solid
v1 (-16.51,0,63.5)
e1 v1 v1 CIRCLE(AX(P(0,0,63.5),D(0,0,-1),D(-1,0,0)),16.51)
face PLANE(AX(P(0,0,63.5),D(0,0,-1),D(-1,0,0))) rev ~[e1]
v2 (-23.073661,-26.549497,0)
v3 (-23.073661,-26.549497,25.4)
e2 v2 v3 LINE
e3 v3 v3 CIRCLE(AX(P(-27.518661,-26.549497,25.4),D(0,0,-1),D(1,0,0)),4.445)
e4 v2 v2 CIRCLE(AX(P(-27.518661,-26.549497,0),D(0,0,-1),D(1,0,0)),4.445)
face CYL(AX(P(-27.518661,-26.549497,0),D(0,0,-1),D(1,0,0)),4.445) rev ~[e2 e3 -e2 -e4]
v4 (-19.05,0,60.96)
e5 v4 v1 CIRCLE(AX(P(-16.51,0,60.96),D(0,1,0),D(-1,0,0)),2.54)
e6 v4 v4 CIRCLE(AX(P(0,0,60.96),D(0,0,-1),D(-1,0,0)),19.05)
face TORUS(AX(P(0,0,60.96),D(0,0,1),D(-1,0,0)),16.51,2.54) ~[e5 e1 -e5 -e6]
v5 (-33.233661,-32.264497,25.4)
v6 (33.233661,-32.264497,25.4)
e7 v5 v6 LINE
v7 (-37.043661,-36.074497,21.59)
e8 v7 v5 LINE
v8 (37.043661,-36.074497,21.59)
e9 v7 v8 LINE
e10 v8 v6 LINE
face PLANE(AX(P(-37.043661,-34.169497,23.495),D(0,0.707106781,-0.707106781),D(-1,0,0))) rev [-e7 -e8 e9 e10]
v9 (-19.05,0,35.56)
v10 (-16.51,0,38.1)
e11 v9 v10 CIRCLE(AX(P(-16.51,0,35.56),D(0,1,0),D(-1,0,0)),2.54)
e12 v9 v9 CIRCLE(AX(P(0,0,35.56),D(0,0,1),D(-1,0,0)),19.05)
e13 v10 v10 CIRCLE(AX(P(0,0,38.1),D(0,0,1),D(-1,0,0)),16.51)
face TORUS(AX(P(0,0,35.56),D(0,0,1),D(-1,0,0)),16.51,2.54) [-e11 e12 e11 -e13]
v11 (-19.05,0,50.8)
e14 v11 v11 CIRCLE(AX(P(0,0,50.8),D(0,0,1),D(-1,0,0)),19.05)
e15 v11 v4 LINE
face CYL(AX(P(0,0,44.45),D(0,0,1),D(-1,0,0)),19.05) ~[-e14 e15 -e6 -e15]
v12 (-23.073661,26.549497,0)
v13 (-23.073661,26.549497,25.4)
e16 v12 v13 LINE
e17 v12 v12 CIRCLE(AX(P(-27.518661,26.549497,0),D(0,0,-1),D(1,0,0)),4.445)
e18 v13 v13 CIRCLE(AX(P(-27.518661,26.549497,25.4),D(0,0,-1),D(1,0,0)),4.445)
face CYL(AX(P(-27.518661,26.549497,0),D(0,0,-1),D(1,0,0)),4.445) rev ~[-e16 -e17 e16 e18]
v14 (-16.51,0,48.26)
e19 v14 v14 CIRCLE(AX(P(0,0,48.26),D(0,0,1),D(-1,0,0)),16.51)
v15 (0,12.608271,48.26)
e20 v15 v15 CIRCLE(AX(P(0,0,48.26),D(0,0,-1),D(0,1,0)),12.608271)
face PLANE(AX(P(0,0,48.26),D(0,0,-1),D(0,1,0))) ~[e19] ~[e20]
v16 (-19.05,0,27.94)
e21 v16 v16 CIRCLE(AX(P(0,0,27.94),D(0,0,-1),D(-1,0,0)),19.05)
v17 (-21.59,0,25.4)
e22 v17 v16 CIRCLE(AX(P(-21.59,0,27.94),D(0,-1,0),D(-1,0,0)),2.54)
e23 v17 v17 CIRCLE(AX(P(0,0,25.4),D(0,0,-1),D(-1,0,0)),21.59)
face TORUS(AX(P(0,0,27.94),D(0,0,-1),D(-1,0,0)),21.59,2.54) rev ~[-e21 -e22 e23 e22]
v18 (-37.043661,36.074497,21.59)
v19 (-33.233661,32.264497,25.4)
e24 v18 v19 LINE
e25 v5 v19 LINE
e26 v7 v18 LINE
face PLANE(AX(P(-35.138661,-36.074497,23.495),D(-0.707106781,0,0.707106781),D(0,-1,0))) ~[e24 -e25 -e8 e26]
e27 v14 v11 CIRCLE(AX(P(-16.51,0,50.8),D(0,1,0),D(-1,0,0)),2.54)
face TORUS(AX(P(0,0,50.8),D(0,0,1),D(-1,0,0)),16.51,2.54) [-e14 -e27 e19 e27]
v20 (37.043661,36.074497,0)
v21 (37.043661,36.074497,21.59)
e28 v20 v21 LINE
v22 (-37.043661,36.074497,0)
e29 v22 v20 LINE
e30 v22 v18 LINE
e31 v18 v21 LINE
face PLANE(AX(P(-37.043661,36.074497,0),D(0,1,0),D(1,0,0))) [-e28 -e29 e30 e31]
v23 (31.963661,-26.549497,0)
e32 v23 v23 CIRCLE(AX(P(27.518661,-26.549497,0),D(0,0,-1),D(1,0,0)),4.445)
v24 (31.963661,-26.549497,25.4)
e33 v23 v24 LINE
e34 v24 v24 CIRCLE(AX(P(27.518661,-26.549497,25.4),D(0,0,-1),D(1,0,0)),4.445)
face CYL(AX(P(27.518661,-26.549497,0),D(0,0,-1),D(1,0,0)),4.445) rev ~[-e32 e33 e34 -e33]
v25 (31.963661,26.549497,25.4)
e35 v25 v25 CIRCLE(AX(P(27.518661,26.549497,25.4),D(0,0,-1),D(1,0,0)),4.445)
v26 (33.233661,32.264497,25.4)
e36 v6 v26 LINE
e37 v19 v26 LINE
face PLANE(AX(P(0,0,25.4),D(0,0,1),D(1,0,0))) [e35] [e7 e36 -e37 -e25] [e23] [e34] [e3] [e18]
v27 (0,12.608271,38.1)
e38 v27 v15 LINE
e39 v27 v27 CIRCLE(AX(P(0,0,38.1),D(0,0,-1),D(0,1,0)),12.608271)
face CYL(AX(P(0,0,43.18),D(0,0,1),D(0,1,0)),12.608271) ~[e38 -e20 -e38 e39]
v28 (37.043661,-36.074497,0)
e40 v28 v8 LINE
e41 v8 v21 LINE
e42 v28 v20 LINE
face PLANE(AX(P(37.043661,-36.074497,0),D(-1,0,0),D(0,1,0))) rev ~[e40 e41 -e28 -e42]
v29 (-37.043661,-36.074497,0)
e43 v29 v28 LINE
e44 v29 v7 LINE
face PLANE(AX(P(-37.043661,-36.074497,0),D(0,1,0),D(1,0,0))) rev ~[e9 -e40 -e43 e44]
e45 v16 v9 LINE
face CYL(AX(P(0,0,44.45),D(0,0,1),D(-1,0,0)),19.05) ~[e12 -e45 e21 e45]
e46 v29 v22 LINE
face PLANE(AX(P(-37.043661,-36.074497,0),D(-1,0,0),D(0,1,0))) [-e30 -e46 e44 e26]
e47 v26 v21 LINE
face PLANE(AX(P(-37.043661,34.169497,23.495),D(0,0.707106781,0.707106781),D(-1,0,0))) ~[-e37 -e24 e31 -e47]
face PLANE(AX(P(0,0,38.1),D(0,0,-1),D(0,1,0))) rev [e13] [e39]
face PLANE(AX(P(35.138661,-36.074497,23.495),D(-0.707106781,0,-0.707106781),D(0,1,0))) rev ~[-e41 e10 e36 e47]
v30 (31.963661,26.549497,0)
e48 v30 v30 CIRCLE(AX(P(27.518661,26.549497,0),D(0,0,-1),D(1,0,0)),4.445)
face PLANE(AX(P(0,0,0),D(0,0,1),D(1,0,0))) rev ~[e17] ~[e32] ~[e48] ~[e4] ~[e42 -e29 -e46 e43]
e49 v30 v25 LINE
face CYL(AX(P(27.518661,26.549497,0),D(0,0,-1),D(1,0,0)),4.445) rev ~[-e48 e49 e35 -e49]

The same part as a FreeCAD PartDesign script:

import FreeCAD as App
import Part
import Sketcher
Q = App.Units.Quantity


def edges_at(feature, points):
    """Names of the edges that pass closest to the given points."""
    edges = feature.Shape.Edges
    near = lambda p: min(range(len(edges)), key=lambda i: edges[i].distToShape(Part.Vertex(*p))[0])
    return sorted({f"Edge{near(p) + 1}" for p in points})

doc = App.newDocument("Part")
body = doc.addObject("PartDesign::Body", "Body")

# Sketch on XY plane
sketch1 = body.newObject("Sketcher::SketchObject", "Sketch")
sketch1.AttachmentSupport = (doc.getObject("XY_Plane"), [""])
sketch1.MapMode = "FlatFace"
sketch1.addGeometry(Part.LineSegment(App.Vector(-37.043661, 36.074497, 0), App.Vector(-37.043661, -36.074497, 0)), False)
sketch1.addGeometry(Part.LineSegment(App.Vector(-37.043661, -36.074497, 0), App.Vector(37.043661, -36.074497, 0)), False)
sketch1.addGeometry(Part.LineSegment(App.Vector(37.043661, -36.074497, 0), App.Vector(37.043661, 36.074497, 0)), False)
sketch1.addGeometry(Part.LineSegment(App.Vector(37.043661, 36.074497, 0), App.Vector(-37.043661, 36.074497, 0)), False)
sketch1.addConstraint(Sketcher.Constraint("Coincident", 0, 2, 1, 1))
sketch1.addConstraint(Sketcher.Constraint("Coincident", 1, 2, 2, 1))
sketch1.addConstraint(Sketcher.Constraint("Coincident", 2, 2, 3, 1))
sketch1.addConstraint(Sketcher.Constraint("Coincident", 3, 2, 0, 1))
sketch1.addConstraint(Sketcher.Constraint("Vertical", 0))
sketch1.addConstraint(Sketcher.Constraint("Horizontal", 1))
sketch1.addConstraint(Sketcher.Constraint("Vertical", 2))
sketch1.addConstraint(Sketcher.Constraint("Horizontal", 3))
sketch1.addConstraint(Sketcher.Constraint("Symmetric", 0, 2, 2, 2, -1, 1))
sketch1.addConstraint(Sketcher.Constraint("DistanceX", 1, 1, 1, 2, Q("74.087322 mm")))
sketch1.addConstraint(Sketcher.Constraint("DistanceY", 0, 2, 0, 1, Q("72.148994 mm")))
pad1 = body.newObject("PartDesign::Pad", "Pad")
pad1.Profile = sketch1
pad1.Length = Q("1 in")

# Sketch on XY plane
sketch2 = body.newObject("Sketcher::SketchObject", "Sketch001")
sketch2.AttachmentSupport = (doc.getObject("XY_Plane"), [""])
sketch2.MapMode = "FlatFace"
sketch2.addGeometry(Part.Circle(App.Vector(27.518661, 26.549497, 0), App.Vector(0, 0, 1), 4.445), False)
sketch2.addGeometry(Part.Circle(App.Vector(27.518661, -26.549497, 0), App.Vector(0, 0, 1), 4.445), False)
sketch2.addGeometry(Part.Circle(App.Vector(-27.518661, -26.549497, 0), App.Vector(0, 0, 1), 4.445), False)
sketch2.addGeometry(Part.Circle(App.Vector(-27.518661, 26.549497, 0), App.Vector(0, 0, 1), 4.445), False)
sketch2.addConstraint(Sketcher.Constraint("Equal", 0, 1))
sketch2.addConstraint(Sketcher.Constraint("Equal", 1, 2))
sketch2.addConstraint(Sketcher.Constraint("Equal", 2, 3))
sketch2.addConstraint(Sketcher.Constraint("Symmetric", 0, 3, 2, 3, -1, 1))
sketch2.addConstraint(Sketcher.Constraint("Symmetric", 1, 3, 3, 3, -1, 1))
sketch2.addConstraint(Sketcher.Constraint("Symmetric", 1, 3, 2, 3, -2))
sketch2.addConstraint(Sketcher.Constraint("Diameter", 0, Q("0.35 in")))
sketch2.addConstraint(Sketcher.Constraint("DistanceX", -1, 1, 0, 3, Q("27.518661 mm")))
sketch2.addConstraint(Sketcher.Constraint("DistanceY", -1, 1, 0, 3, Q("26.549497 mm")))
pocket1 = body.newObject("PartDesign::Pocket", "Pocket")
pocket1.Profile = sketch2
pocket1.Length = Q("1 in")
pocket1.Reversed = True

# Sketch on XZ plane
sketch3 = body.newObject("Sketcher::SketchObject", "Sketch002")
sketch3.AttachmentSupport = (doc.getObject("XZ_Plane"), [""])
sketch3.MapMode = "FlatFace"
sketch3.addGeometry(Part.LineSegment(App.Vector(-19.05, 63.5, 0), App.Vector(-19.05, 25.4, 0)), False)
sketch3.addGeometry(Part.LineSegment(App.Vector(-19.05, 25.4, 0), App.Vector(0, 25.4, 0)), False)
sketch3.addGeometry(Part.LineSegment(App.Vector(0, 25.4, 0), App.Vector(0, 63.5, 0)), False)
sketch3.addGeometry(Part.LineSegment(App.Vector(0, 63.5, 0), App.Vector(-19.05, 63.5, 0)), False)
sketch3.addConstraint(Sketcher.Constraint("Coincident", 0, 2, 1, 1))
sketch3.addConstraint(Sketcher.Constraint("Coincident", 1, 2, 2, 1))
sketch3.addConstraint(Sketcher.Constraint("Coincident", 2, 2, 3, 1))
sketch3.addConstraint(Sketcher.Constraint("Coincident", 3, 2, 0, 1))
sketch3.addConstraint(Sketcher.Constraint("Vertical", 0))
sketch3.addConstraint(Sketcher.Constraint("Horizontal", 1))
sketch3.addConstraint(Sketcher.Constraint("Vertical", 2))
sketch3.addConstraint(Sketcher.Constraint("Horizontal", 3))
sketch3.addConstraint(Sketcher.Constraint("PointOnObject", 1, 2, -2))
sketch3.addConstraint(Sketcher.Constraint("DistanceY", 0, 2, 0, 1, Q("1.5 in")))
sketch3.addConstraint(Sketcher.Constraint("DistanceY", -1, 1, 0, 2, Q("1 in")))
sketch3.addConstraint(Sketcher.Constraint("DistanceX", 1, 1, 1, 2, Q("0.75 in")))
revolution = body.newObject("PartDesign::Revolution", "Revolution")
revolution.Profile = sketch3
revolution.ReferenceAxis = (sketch3, ["V_Axis"])
revolution.Angle = 360

# Sketch on YZ plane
sketch4 = body.newObject("Sketcher::SketchObject", "Sketch003")
sketch4.AttachmentSupport = (doc.getObject("YZ_Plane"), [""])
sketch4.MapMode = "FlatFace"
sketch4.addGeometry(Part.LineSegment(App.Vector(12.608271, 48.26, 0), App.Vector(12.608271, 38.1, 0)), False)
sketch4.addGeometry(Part.LineSegment(App.Vector(12.608271, 38.1, 0), App.Vector(23.043464, 38.1, 0)), False)
sketch4.addGeometry(Part.LineSegment(App.Vector(23.043464, 38.1, 0), App.Vector(23.043464, 48.26, 0)), False)
sketch4.addGeometry(Part.LineSegment(App.Vector(23.043464, 48.26, 0), App.Vector(12.608271, 48.26, 0)), False)
sketch4.addConstraint(Sketcher.Constraint("Coincident", 0, 2, 1, 1))
sketch4.addConstraint(Sketcher.Constraint("Coincident", 1, 2, 2, 1))
sketch4.addConstraint(Sketcher.Constraint("Coincident", 2, 2, 3, 1))
sketch4.addConstraint(Sketcher.Constraint("Coincident", 3, 2, 0, 1))
sketch4.addConstraint(Sketcher.Constraint("Vertical", 0))
sketch4.addConstraint(Sketcher.Constraint("Horizontal", 1))
sketch4.addConstraint(Sketcher.Constraint("Vertical", 2))
sketch4.addConstraint(Sketcher.Constraint("Horizontal", 3))
sketch4.addConstraint(Sketcher.Constraint("DistanceY", 0, 2, 0, 1, Q("0.4 in")))
sketch4.addConstraint(Sketcher.Constraint("DistanceY", -1, 1, 0, 2, Q("1.5 in")))
sketch4.addConstraint(Sketcher.Constraint("DistanceX", 1, 1, 1, 2, Q("10.435194 mm")))
sketch4.addConstraint(Sketcher.Constraint("DistanceX", -1, 1, 0, 2, Q("12.608271 mm")))
groove = body.newObject("PartDesign::Groove", "Groove")
groove.Profile = sketch4
groove.ReferenceAxis = (sketch4, ["V_Axis"])
groove.Angle = 360
doc.recompute()

chamfer = body.newObject("PartDesign::Chamfer", "Chamfer")
chamfer.Base = (groove, edges_at(groove, [
    (-37.044, 0, 25.4),
    (0, -36.074, 25.4),
    (37.044, 0, 25.4),
    (0, 36.074, 25.4),
]))
chamfer.Size = Q("0.15 in")
doc.recompute()

fillet = body.newObject("PartDesign::Fillet", "Fillet")
fillet.Base = (chamfer, edges_at(chamfer, [(19.05, 0, 38.1), (19.05, 0, 48.26), (19.05, 0, 25.4)]))
fillet.Radius = Q("0.1 in")
doc.recompute()

fillet2 = body.newObject("PartDesign::Fillet", "Fillet001")
fillet2.Base = (fillet, edges_at(fillet, [(19.05, 0, 63.5)]))
fillet2.Radius = Q("0.1 in")

doc.recompute()
